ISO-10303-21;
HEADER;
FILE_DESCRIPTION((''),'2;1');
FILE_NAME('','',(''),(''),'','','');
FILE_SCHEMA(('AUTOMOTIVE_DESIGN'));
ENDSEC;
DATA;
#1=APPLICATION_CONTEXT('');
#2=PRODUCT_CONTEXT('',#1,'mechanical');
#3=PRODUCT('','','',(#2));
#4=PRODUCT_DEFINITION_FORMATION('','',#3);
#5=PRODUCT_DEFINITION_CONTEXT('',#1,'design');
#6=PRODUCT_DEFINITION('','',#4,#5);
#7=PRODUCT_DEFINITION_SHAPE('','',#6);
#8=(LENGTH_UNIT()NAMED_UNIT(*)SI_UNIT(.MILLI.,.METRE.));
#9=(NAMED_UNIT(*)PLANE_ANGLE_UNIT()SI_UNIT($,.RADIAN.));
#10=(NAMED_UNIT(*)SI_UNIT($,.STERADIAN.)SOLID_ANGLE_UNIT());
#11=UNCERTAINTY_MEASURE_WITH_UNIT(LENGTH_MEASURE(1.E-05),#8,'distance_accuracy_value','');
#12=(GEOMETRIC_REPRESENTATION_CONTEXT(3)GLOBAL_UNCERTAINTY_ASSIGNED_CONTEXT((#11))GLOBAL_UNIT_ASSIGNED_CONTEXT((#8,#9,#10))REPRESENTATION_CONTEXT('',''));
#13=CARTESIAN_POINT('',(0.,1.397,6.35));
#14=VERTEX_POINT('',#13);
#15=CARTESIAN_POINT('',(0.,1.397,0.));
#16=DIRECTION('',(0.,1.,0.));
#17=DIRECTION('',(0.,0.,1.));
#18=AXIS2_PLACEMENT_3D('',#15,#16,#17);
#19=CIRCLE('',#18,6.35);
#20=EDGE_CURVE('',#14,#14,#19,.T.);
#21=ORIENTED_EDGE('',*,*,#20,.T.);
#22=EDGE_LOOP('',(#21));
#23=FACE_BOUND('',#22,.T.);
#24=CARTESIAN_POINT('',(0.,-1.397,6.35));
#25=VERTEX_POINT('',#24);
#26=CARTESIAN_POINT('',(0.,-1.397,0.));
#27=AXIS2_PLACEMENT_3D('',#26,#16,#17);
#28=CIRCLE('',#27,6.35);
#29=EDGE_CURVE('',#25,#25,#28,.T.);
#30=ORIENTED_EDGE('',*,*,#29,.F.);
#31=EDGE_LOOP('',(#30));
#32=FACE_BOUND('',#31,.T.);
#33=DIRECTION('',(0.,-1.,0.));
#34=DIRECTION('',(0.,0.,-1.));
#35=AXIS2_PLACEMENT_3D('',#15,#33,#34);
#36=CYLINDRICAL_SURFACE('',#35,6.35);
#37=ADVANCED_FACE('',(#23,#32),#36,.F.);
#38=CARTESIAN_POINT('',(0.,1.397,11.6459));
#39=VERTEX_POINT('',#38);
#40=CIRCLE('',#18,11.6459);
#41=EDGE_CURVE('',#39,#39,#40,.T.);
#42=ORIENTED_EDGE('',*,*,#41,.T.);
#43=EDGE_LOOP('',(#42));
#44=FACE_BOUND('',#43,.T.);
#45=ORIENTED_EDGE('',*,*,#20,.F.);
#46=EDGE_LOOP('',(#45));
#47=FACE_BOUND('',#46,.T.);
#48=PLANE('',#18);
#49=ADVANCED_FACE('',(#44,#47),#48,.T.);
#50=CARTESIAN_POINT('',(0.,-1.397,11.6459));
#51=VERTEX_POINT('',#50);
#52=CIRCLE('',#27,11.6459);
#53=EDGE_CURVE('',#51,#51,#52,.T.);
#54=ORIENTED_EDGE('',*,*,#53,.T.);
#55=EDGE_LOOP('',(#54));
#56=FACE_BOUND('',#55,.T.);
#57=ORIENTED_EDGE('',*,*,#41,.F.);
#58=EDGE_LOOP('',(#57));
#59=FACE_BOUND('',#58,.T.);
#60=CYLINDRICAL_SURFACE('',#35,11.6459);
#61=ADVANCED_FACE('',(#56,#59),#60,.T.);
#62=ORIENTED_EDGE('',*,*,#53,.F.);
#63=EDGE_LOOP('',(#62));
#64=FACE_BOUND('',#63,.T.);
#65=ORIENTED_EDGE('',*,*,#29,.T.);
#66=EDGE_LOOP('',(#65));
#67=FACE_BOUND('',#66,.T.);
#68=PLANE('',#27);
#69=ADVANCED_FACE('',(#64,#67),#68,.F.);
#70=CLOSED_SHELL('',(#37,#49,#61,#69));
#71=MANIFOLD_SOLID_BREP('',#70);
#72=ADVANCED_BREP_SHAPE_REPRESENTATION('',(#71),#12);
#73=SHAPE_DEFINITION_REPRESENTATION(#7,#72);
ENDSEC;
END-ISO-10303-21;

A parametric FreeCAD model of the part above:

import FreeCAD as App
import Part
import Sketcher

V = App.Vector
Q = App.Units.Quantity

doc = App.newDocument("Part")
body = doc.addObject("PartDesign::Body", "Body")

# Sketch on XZ plane
sketch1 = body.newObject("Sketcher::SketchObject", "Sketch")
sketch1.AttachmentSupport = (doc.getObject("XZ_Plane"), [""])
sketch1.MapMode = "FlatFace"
sketch1.addGeometry([
    Part.Circle(V(0, 0, 0), V(0, 0, 1), 12),
    Part.Circle(V(0, 0, 0), V(0, 0, 1), 6),
], False)
sketch1.addConstraint([
    Sketcher.Constraint("Coincident", 0, 3, -1, 1),
    Sketcher.Constraint("Coincident", 1, 3, -1, 1),
    Sketcher.Constraint("Diameter", 1, Q("0.5 in")),
    Sketcher.Constraint("Diameter", 0, Q("0.917 in")),
])
pad1 = body.newObject("PartDesign::Pad", "Pad")
pad1.Profile = sketch1
pad1.Length = Q("0.11 in")
pad1.Midplane = True

doc.recompute()
